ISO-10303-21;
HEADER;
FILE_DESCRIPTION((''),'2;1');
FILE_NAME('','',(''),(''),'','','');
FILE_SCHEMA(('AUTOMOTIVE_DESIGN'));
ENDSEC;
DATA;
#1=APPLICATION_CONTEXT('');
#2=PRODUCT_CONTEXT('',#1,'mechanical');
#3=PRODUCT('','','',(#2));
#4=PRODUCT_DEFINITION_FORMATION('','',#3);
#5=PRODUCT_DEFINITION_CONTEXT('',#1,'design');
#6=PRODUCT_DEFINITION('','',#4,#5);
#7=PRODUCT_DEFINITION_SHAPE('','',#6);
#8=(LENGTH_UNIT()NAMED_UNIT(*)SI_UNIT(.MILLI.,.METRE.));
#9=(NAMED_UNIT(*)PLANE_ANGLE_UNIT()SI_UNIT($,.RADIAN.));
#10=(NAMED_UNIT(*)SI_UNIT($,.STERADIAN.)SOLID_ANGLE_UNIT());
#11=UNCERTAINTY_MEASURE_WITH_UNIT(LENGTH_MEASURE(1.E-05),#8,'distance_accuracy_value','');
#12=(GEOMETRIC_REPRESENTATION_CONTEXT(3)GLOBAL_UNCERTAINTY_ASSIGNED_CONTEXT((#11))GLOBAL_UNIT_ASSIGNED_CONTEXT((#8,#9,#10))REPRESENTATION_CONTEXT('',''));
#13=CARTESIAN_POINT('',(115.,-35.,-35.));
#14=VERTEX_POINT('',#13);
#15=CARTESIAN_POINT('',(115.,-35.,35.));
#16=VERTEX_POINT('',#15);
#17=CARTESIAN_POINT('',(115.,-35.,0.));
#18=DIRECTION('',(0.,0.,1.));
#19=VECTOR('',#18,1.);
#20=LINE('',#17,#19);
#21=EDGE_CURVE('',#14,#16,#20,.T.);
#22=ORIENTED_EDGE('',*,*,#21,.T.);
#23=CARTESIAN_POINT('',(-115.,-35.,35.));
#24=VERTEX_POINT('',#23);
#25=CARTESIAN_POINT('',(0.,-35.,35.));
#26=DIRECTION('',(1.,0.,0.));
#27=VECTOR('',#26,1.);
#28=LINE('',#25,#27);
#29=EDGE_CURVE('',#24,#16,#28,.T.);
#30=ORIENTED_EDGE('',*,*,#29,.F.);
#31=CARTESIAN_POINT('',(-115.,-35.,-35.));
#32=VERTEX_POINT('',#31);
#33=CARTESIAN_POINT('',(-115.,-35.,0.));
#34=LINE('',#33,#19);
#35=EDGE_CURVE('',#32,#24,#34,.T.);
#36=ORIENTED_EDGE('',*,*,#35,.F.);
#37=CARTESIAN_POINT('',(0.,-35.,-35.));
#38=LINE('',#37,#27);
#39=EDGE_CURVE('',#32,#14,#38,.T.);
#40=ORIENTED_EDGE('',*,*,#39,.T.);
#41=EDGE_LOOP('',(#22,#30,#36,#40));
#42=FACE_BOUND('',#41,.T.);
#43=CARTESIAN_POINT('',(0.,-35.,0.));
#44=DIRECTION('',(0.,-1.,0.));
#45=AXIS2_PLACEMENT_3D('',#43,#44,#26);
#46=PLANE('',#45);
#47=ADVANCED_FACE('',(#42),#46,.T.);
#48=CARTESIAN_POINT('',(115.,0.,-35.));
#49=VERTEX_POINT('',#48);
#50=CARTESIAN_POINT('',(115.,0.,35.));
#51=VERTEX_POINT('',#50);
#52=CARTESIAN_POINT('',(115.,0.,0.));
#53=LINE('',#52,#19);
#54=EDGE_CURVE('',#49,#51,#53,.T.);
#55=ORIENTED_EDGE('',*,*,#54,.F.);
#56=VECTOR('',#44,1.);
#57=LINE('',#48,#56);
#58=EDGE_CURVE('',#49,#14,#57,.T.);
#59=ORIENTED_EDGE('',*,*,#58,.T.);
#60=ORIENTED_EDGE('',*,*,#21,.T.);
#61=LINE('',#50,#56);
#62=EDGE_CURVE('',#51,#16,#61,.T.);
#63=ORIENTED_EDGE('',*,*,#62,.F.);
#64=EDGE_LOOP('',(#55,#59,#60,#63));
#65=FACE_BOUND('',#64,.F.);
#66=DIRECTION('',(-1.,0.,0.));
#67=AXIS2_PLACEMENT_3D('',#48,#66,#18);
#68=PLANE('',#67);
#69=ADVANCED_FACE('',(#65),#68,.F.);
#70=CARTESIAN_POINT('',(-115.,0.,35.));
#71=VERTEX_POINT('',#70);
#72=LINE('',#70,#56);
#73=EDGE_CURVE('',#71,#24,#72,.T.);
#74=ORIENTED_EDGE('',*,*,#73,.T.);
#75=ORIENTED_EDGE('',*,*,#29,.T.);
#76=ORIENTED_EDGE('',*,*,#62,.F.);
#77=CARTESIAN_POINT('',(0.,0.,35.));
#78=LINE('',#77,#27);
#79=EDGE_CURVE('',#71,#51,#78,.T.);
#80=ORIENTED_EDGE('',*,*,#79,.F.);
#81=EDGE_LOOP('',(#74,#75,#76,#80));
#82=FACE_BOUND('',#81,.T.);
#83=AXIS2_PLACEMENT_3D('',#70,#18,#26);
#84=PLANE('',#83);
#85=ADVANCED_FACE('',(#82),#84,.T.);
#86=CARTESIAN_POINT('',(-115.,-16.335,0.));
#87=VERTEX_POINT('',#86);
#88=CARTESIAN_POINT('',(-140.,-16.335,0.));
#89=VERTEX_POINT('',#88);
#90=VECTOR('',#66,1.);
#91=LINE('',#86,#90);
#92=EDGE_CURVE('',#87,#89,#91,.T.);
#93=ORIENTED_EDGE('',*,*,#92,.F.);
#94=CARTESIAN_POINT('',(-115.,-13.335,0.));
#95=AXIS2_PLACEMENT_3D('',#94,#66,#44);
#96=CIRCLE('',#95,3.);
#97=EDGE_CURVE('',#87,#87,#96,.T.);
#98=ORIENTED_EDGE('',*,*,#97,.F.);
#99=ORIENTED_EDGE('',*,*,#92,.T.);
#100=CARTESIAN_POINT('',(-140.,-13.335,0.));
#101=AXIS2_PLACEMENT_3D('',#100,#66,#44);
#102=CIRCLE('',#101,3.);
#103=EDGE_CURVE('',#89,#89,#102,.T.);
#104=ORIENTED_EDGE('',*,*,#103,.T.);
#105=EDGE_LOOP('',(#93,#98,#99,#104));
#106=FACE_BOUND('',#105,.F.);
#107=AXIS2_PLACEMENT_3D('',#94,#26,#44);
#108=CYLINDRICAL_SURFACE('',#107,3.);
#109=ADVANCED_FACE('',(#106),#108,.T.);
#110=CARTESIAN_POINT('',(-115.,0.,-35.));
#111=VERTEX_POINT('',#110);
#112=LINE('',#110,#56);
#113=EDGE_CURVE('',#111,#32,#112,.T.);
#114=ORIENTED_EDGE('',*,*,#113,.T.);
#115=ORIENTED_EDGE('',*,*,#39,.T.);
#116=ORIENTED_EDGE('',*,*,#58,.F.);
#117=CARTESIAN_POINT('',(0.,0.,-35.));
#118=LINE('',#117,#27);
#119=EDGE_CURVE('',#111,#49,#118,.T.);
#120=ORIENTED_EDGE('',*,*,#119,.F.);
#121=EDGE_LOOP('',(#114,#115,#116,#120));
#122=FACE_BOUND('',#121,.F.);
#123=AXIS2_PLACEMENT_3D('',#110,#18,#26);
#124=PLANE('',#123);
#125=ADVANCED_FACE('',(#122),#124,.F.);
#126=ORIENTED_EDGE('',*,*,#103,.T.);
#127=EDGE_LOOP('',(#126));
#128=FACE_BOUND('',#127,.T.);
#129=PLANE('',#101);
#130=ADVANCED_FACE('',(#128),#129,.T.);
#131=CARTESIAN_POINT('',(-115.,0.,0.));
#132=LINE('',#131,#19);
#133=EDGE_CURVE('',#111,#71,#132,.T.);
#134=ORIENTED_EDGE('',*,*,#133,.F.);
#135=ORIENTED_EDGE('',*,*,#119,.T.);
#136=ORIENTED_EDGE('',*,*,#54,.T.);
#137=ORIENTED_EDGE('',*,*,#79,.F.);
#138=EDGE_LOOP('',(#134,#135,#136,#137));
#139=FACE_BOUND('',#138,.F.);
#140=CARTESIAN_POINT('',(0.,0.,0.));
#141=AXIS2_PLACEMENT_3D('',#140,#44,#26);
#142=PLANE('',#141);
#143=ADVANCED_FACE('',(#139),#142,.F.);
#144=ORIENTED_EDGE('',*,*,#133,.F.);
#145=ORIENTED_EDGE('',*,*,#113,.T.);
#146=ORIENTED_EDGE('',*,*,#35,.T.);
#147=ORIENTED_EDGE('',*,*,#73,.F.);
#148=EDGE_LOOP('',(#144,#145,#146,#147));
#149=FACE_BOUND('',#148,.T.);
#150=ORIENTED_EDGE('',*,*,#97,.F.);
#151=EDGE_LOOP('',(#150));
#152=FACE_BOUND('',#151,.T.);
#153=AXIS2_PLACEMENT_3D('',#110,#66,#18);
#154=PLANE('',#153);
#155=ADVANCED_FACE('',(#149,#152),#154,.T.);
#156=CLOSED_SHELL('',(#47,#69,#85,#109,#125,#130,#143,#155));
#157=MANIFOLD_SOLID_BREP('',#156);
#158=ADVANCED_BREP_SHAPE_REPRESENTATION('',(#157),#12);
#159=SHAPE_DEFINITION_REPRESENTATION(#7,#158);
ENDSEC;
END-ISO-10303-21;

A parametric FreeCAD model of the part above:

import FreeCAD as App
import Part
import Sketcher
from FreeCAD import Vector


def add_polygon(sketch, points):
    """Adds a closed chain of lines whose ends are joined by coincident constraints."""
    first, n = sketch.GeometryCount, len(points)
    for a, b in zip(points, points[1:] + points[:1]):
        sketch.addGeometry(Part.LineSegment(App.Vector(*a, 0), App.Vector(*b, 0)), False)
    for i in range(n):
        sketch.addConstraint(Sketcher.Constraint("Coincident", first + i, 2, first + (i + 1) % n, 1))

doc = App.newDocument("Part")
body = doc.addObject("PartDesign::Body", "Body")

# Sketch on XZ plane
sketch1 = doc.addObject("Sketcher::SketchObject", "Sketch")
body.addObject(sketch1)
sketch1.AttachmentSupport = (doc.XZ_Plane, [""])
sketch1.MapMode = "FlatFace"
add_polygon(sketch1, [(-115, 35), (-115, -35), (115, -35), (115, 35)])  # lines 0-3
sketch1.addConstraint(Sketcher.Constraint("Vertical", 0))
sketch1.addConstraint(Sketcher.Constraint("Horizontal", 1))
sketch1.addConstraint(Sketcher.Constraint("Vertical", 2))
sketch1.addConstraint(Sketcher.Constraint("Horizontal", 3))
sketch1.addConstraint(Sketcher.Constraint("Symmetric", 0, 2, 2, 2, -1, 1))
sketch1.addConstraint(Sketcher.Constraint("DistanceX", 1, 1, 1, 2, 230.0))
sketch1.addConstraint(Sketcher.Constraint("DistanceY", 0, 2, 0, 1, 70.0))
pad1 = doc.addObject("PartDesign::Pad", "Pad")
body.addObject(pad1)
pad1.Profile = sketch1
pad1.Length = 35

# Sketch on YZ plane
sketch2 = doc.addObject("Sketcher::SketchObject", "Sketch001")
body.addObject(sketch2)
sketch2.AttachmentSupport = (doc.YZ_Plane, [""])
sketch2.MapMode = "FlatFace"
sketch2.AttachmentOffset = App.Placement(Vector(0, 0, -115), App.Rotation())
sketch2.addGeometry(Part.Circle(Vector(-13.335, 0, 0), Vector(0, 0, 1), 3), False)
sketch2.addConstraint(Sketcher.Constraint("PointOnObject", 0, 3, -1))
sketch2.addConstraint(Sketcher.Constraint("Diameter", 0, 6.0))
sketch2.addConstraint(Sketcher.Constraint("DistanceX", 0, 3, -1, 1, 13.335))
pad2 = doc.addObject("PartDesign::Pad", "Pad001")
body.addObject(pad2)
pad2.Profile = sketch2
pad2.Length = 25
pad2.Reversed = True

doc.recompute()
